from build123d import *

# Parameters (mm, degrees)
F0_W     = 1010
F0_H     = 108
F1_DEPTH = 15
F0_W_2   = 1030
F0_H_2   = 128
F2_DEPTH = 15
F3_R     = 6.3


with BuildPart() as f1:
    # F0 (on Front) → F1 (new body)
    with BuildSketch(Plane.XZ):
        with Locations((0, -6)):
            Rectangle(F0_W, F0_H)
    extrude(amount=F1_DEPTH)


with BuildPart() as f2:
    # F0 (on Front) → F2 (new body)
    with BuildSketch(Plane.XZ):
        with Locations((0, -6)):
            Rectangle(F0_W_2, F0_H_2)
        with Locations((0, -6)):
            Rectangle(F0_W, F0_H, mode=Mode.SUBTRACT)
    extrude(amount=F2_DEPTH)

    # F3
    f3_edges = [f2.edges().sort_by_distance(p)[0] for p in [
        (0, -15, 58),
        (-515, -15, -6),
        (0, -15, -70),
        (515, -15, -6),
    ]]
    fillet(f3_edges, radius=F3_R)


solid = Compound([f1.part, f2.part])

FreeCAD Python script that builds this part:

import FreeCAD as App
import Part
import Sketcher
from FreeCAD import Vector


def edges_at(feature, points):
    """Names of the edges that pass closest to the given points."""
    edges = feature.Shape.Edges
    near = lambda p: min(range(len(edges)), key=lambda i: edges[i].distToShape(Part.Vertex(*p))[0])
    return sorted({f"Edge{near(p) + 1}" for p in points})


def add_polygon(sketch, points):
    """Adds a closed chain of lines whose ends are joined by coincident constraints."""
    first, n = sketch.GeometryCount, len(points)
    for a, b in zip(points, points[1:] + points[:1]):
        sketch.addGeometry(Part.LineSegment(App.Vector(*a, 0), App.Vector(*b, 0)), False)
    for i in range(n):
        sketch.addConstraint(Sketcher.Constraint("Coincident", first + i, 2, first + (i + 1) % n, 1))

doc = App.newDocument("Part")
params = doc.addObject("Spreadsheet::Sheet", "Params")
for row, (alias, value) in enumerate([
    ("sketch1_width", "1010 mm"),
    ("sketch1_height", "108 mm"),
    ("pad1_length", "15 mm"),
    ("sketch2_width", "1030 mm"),
    ("sketch2_width2", "1010 mm"),
    ("sketch2_height", "128 mm"),
    ("sketch2_height2", "108 mm"),
    ("pad2_length", "15 mm"),
    ("fillet_radius", "6.3 mm"),
], start=1):
    params.set(f"A{row}", alias)
    params.set(f"B{row}", "=" + value)
    params.setAlias(f"B{row}", alias)

body = doc.addObject("PartDesign::Body", "Body")

sketch1 = body.newObject("Sketcher::SketchObject", "Sketch")
sketch1.AttachmentSupport = (doc.getObject("XZ_Plane"), [""])
sketch1.MapMode = "FlatFace"
add_polygon(sketch1, [(-505, 48), (-505, -60), (505, -60), (505, 48)])
sketch1.addConstraint([
    Sketcher.Constraint("Vertical", 0),
    Sketcher.Constraint("Horizontal", 1),
    Sketcher.Constraint("Vertical", 2),
    Sketcher.Constraint("Horizontal", 3),
    Sketcher.Constraint("DistanceX", 1, 1, 1, 2, 1010.0),
    Sketcher.Constraint("DistanceY", 0, 2, 0, 1, 108.0),
    Sketcher.Constraint("DistanceX", 0, 2, -1, 1, 505.0),
    Sketcher.Constraint("DistanceY", 0, 2, -1, 1, 60.0),
])
sketch1.setExpression("Constraints[8]", "Params.sketch1_width")
sketch1.setExpression("Constraints[9]", "Params.sketch1_height")
pad1 = body.newObject("PartDesign::Pad", "Pad")
pad1.Profile = sketch1
pad1.setExpression("Length", "Params.pad1_length")
body2 = doc.addObject("PartDesign::Body", "Body001")

sketch2 = body2.newObject("Sketcher::SketchObject", "Sketch001")
sketch2.AttachmentSupport = (doc.getObject("XZ_Plane001"), [""])
sketch2.MapMode = "FlatFace"
add_polygon(sketch2, [(-515, 58), (-515, -70), (515, -70), (515, 58)])
add_polygon(sketch2, [(505, -60), (-505, -60), (-505, 48), (505, 48)])
sketch2.addConstraint([
    Sketcher.Constraint("Vertical", 0),
    Sketcher.Constraint("Horizontal", 1),
    Sketcher.Constraint("Vertical", 2),
    Sketcher.Constraint("Horizontal", 3),
    Sketcher.Constraint("Horizontal", 4),
    Sketcher.Constraint("Vertical", 5),
    Sketcher.Constraint("Horizontal", 6),
    Sketcher.Constraint("Vertical", 7),
    Sketcher.Constraint("DistanceX", 1, 1, 1, 2, 1030.0),
    Sketcher.Constraint("DistanceX", 4, 2, 4, 1, 1010.0),
    Sketcher.Constraint("DistanceY", 0, 2, 0, 1, 128.0),
    Sketcher.Constraint("DistanceY", 5, 1, 5, 2, 108.0),
    Sketcher.Constraint("DistanceX", 0, 2, -1, 1, 515.0),
    Sketcher.Constraint("DistanceY", 0, 2, -1, 1, 70.0),
    Sketcher.Constraint("DistanceX", 4, 2, -1, 1, 505.0),
    Sketcher.Constraint("DistanceY", 4, 2, -1, 1, 60.0),
])
sketch2.setExpression("Constraints[16]", "Params.sketch2_width")
sketch2.setExpression("Constraints[17]", "Params.sketch2_width2")
sketch2.setExpression("Constraints[18]", "Params.sketch2_height")
sketch2.setExpression("Constraints[19]", "Params.sketch2_height2")
pad2 = body2.newObject("PartDesign::Pad", "Pad001")
pad2.Profile = sketch2
pad2.setExpression("Length", "Params.pad2_length")
doc.recompute()

fillet = body2.newObject("PartDesign::Fillet", "Fillet")
fillet.Base = (pad2, edges_at(pad2, [
    (0, -15, 58),
    (-515, -15, -6),
    (0, -15, -70),
    (515, -15, -6),
]))
fillet.setExpression("Radius", "Params.fillet_radius")

doc.recompute()
